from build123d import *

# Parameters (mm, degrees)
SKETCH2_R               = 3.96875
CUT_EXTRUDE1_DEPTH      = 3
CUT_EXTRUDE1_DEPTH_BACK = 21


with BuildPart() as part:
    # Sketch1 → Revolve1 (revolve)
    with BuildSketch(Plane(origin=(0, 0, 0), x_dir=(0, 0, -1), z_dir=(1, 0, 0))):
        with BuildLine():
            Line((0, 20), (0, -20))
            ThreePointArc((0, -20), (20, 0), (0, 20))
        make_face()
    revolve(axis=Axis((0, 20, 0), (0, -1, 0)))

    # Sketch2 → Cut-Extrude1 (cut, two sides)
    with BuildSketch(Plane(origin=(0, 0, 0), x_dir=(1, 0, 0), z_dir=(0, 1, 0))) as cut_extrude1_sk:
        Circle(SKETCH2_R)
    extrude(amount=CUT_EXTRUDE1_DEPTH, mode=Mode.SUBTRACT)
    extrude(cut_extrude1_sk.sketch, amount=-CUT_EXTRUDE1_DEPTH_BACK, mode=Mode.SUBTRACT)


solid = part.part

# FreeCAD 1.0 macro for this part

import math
import FreeCAD as App
import Part
import Sketcher
Q = App.Units.Quantity

doc = App.newDocument("Part")
body = doc.addObject("PartDesign::Body", "Body")

# Sketch on YZ plane
sketch1 = body.newObject("Sketcher::SketchObject", "Sketch")
sketch1.AttachmentSupport = (doc.getObject("YZ_Plane"), [""])
sketch1.MapMode = "FlatFace"
sketch1.addGeometry(Part.LineSegment(App.Vector(20, 0, 0), App.Vector(-20, 0, 0)), False)
sketch1.addGeometry(Part.ArcOfCircle(Part.Circle(App.Vector(0, 0, 0), App.Vector(0, 0, 1), 20), math.radians(180), math.radians(360)), False)
sketch1.addConstraint(Sketcher.Constraint("Coincident", 0, 1, 1, 2))
sketch1.addConstraint(Sketcher.Constraint("Coincident", 1, 1, 0, 2))
sketch1.addConstraint(Sketcher.Constraint("Horizontal", 0))
sketch1.addConstraint(Sketcher.Constraint("Coincident", 1, 3, -1, 1))
sketch1.addConstraint(Sketcher.Constraint("PointOnObject", 0, 1, -1))
sketch1.addConstraint(Sketcher.Constraint("Radius", 1, Q("20 mm")))
revolution = body.newObject("PartDesign::Revolution", "Revolution")
revolution.Profile = sketch1
revolution.ReferenceAxis = (sketch1, ["H_Axis"])
revolution.Angle = 360

# Sketch on XZ plane
sketch2 = body.newObject("Sketcher::SketchObject", "Sketch001")
sketch2.AttachmentSupport = (doc.getObject("XZ_Plane"), [""])
sketch2.MapMode = "FlatFace"
sketch2.addGeometry(Part.Circle(App.Vector(0, 0, 0), App.Vector(0, 0, 1), 4), False)
sketch2.addConstraint(Sketcher.Constraint("Coincident", 0, 3, -1, 1))
sketch2.addConstraint(Sketcher.Constraint("Diameter", 0, Q("7.9375 mm")))
pocket1 = body.newObject("PartDesign::Pocket", "Pocket")
pocket1.Profile = sketch2
pocket1.Type = "TwoLengths"
pocket1.Length = 3
pocket1.Length2 = 21

doc.recompute()
